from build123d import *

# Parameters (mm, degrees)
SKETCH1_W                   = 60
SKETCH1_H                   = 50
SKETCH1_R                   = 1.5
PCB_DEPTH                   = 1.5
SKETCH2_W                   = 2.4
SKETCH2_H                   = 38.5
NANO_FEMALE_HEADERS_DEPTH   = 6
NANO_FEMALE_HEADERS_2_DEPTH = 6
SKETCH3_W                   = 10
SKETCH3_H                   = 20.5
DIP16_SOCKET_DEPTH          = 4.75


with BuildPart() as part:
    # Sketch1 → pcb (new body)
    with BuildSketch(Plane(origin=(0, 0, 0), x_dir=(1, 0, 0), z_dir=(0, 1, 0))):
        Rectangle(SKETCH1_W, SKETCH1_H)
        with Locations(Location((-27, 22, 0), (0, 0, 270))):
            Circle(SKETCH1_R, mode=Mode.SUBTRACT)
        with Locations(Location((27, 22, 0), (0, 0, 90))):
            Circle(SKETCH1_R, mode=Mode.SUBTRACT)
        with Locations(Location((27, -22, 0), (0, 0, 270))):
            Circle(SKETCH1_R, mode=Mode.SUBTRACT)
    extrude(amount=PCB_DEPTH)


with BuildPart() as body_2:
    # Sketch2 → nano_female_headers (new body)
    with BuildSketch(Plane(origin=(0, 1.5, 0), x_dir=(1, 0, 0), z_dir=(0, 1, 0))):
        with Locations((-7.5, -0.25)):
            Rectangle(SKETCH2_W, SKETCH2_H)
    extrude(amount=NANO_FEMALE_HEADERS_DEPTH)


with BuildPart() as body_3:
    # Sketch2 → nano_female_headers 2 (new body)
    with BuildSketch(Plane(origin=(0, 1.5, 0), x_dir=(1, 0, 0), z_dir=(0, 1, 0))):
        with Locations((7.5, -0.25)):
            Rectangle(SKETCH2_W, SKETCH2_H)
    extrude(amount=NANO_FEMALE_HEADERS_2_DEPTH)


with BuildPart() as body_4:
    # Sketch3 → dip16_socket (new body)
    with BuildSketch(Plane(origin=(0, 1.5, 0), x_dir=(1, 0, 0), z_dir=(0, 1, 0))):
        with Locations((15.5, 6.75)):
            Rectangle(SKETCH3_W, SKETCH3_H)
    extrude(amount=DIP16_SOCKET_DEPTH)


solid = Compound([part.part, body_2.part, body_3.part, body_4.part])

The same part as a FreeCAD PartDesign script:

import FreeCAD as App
import Part
import Sketcher
from FreeCAD import Vector

doc = App.newDocument("Part")
params = doc.addObject("Spreadsheet::Sheet", "Params")
for row, (alias, value) in enumerate([
    ("sketch1_diameter", "3 mm"),
    ("sketch1_width", "60 mm"),
    ("sketch1_height", "50 mm"),
    ("pad1_length", "1.5 mm"),
    ("sketch2_width", "2.4 mm"),
    ("sketch2_height", "38.5 mm"),
    ("pad2_length", "6 mm"),
    ("sketch3_width", "2.4 mm"),
    ("sketch3_height", "38.5 mm"),
    ("pad3_length", "6 mm"),
    ("sketch4_width", "10 mm"),
    ("sketch4_height", "20.5 mm"),
    ("pad4_length", "4.75 mm"),
], start=1):
    params.set(f"A{row}", alias)
    params.set(f"B{row}", "=" + value)
    params.setAlias(f"B{row}", alias)

body = doc.addObject("PartDesign::Body", "Body")

sketch1 = body.newObject("Sketcher::SketchObject", "Sketch")
sketch1.AttachmentSupport = (doc.getObject("XZ_Plane"), [""])
sketch1.MapMode = "FlatFace"
sketch1.addGeometry([
    Part.LineSegment(Vector(-30, -25, 0), Vector(-30, 25, 0)),
    Part.LineSegment(Vector(-30, 25, 0), Vector(30, 25, 0)),
    Part.LineSegment(Vector(30, 25, 0), Vector(30, -25, 0)),
    Part.LineSegment(Vector(30, -25, 0), Vector(-30, -25, 0)),
    Part.Circle(Vector(27, 22, 0), Vector(0, 0, 1), 1.5),
    Part.Circle(Vector(-27, -22, 0), Vector(0, 0, 1), 1.5),
    Part.Circle(Vector(27, -22, 0), Vector(0, 0, 1), 1.5),
], False)
sketch1.addConstraint([
    Sketcher.Constraint("Coincident", 0, 2, 1, 1),
    Sketcher.Constraint("Coincident", 1, 2, 2, 1),
    Sketcher.Constraint("Coincident", 2, 2, 3, 1),
    Sketcher.Constraint("Coincident", 3, 2, 0, 1),
    Sketcher.Constraint("Vertical", 0),
    Sketcher.Constraint("Horizontal", 1),
    Sketcher.Constraint("Vertical", 2),
    Sketcher.Constraint("Horizontal", 3),
    Sketcher.Constraint("Equal", 4, 5),
    Sketcher.Constraint("Equal", 5, 6),
    Sketcher.Constraint("Symmetric", 4, 3, 5, 3, -1, 1),
    Sketcher.Constraint("Symmetric", 0, 2, 2, 2, -1, 1),
    Sketcher.Constraint("Symmetric", 5, 3, 6, 3, -2),
    Sketcher.Constraint("Diameter", 4, 3.0),
    Sketcher.Constraint("DistanceX", 1, 1, 1, 2, 60.0),
    Sketcher.Constraint("DistanceY", 0, 1, 0, 2, 50.0),
    Sketcher.Constraint("DistanceX", -1, 1, 4, 3, 27.0),
    Sketcher.Constraint("DistanceY", -1, 1, 4, 3, 22.0),
])
sketch1.setExpression("Constraints[13]", "Params.sketch1_diameter")
sketch1.setExpression("Constraints[14]", "Params.sketch1_width")
sketch1.setExpression("Constraints[15]", "Params.sketch1_height")
pad1 = body.newObject("PartDesign::Pad", "Pad")
pad1.Profile = sketch1
pad1.setExpression("Length", "Params.pad1_length")
pad1.Reversed = True
body2 = doc.addObject("PartDesign::Body", "Body001")

sketch2 = body2.newObject("Sketcher::SketchObject", "Sketch001")
sketch2.AttachmentSupport = (doc.getObject("XZ_Plane001"), [""])
sketch2.MapMode = "FlatFace"
sketch2.AttachmentOffset = App.Placement(Vector(0, 0, -1.5), App.Rotation())
sketch2.addGeometry([
    Part.LineSegment(Vector(-8.7, -19, 0), Vector(-8.7, 19.5, 0)),
    Part.LineSegment(Vector(-8.7, 19.5, 0), Vector(-6.3, 19.5, 0)),
    Part.LineSegment(Vector(-6.3, 19.5, 0), Vector(-6.3, -19, 0)),
    Part.LineSegment(Vector(-6.3, -19, 0), Vector(-8.7, -19, 0)),
], False)
sketch2.addConstraint([
    Sketcher.Constraint("Coincident", 0, 2, 1, 1),
    Sketcher.Constraint("Coincident", 1, 2, 2, 1),
    Sketcher.Constraint("Coincident", 2, 2, 3, 1),
    Sketcher.Constraint("Coincident", 3, 2, 0, 1),
    Sketcher.Constraint("Vertical", 0),
    Sketcher.Constraint("Horizontal", 1),
    Sketcher.Constraint("Vertical", 2),
    Sketcher.Constraint("Horizontal", 3),
    Sketcher.Constraint("DistanceX", 1, 1, 1, 2, 2.4),
    Sketcher.Constraint("DistanceY", 0, 1, 0, 2, 38.5),
    Sketcher.Constraint("DistanceY", 2, 2, -1, 1, 19.0),
    Sketcher.Constraint("DistanceX", 0, 2, -1, 1, 8.7),
])
sketch2.setExpression("Constraints[8]", "Params.sketch2_width")
sketch2.setExpression("Constraints[9]", "Params.sketch2_height")
pad2 = body2.newObject("PartDesign::Pad", "Pad001")
pad2.Profile = sketch2
pad2.setExpression("Length", "Params.pad2_length")
pad2.Reversed = True
body3 = doc.addObject("PartDesign::Body", "Body002")

sketch3 = body3.newObject("Sketcher::SketchObject", "Sketch002")
sketch3.AttachmentSupport = (doc.getObject("XZ_Plane002"), [""])
sketch3.MapMode = "FlatFace"
sketch3.AttachmentOffset = App.Placement(Vector(0, 0, -1.5), App.Rotation())
sketch3.addGeometry([
    Part.LineSegment(Vector(6.3, -19, 0), Vector(6.3, 19.5, 0)),
    Part.LineSegment(Vector(6.3, 19.5, 0), Vector(8.7, 19.5, 0)),
    Part.LineSegment(Vector(8.7, 19.5, 0), Vector(8.7, -19, 0)),
    Part.LineSegment(Vector(8.7, -19, 0), Vector(6.3, -19, 0)),
], False)
sketch3.addConstraint([
    Sketcher.Constraint("Coincident", 0, 2, 1, 1),
    Sketcher.Constraint("Coincident", 1, 2, 2, 1),
    Sketcher.Constraint("Coincident", 2, 2, 3, 1),
    Sketcher.Constraint("Coincident", 3, 2, 0, 1),
    Sketcher.Constraint("Vertical", 0),
    Sketcher.Constraint("Horizontal", 1),
    Sketcher.Constraint("Vertical", 2),
    Sketcher.Constraint("Horizontal", 3),
    Sketcher.Constraint("DistanceX", 1, 1, 1, 2, 2.4),
    Sketcher.Constraint("DistanceY", 0, 1, 0, 2, 38.5),
    Sketcher.Constraint("DistanceY", 2, 2, -1, 1, 19.0),
    Sketcher.Constraint("DistanceX", -1, 1, 0, 2, 6.3),
])
sketch3.setExpression("Constraints[8]", "Params.sketch3_width")
sketch3.setExpression("Constraints[9]", "Params.sketch3_height")
pad3 = body3.newObject("PartDesign::Pad", "Pad002")
pad3.Profile = sketch3
pad3.setExpression("Length", "Params.pad3_length")
pad3.Reversed = True
body4 = doc.addObject("PartDesign::Body", "Body003")

sketch4 = body4.newObject("Sketcher::SketchObject", "Sketch003")
sketch4.AttachmentSupport = (doc.getObject("XZ_Plane003"), [""])
sketch4.MapMode = "FlatFace"
sketch4.AttachmentOffset = App.Placement(Vector(0, 0, -1.5), App.Rotation())
sketch4.addGeometry([
    Part.LineSegment(Vector(10.5, -17, 0), Vector(10.5, 3.5, 0)),
    Part.LineSegment(Vector(10.5, 3.5, 0), Vector(20.5, 3.5, 0)),
    Part.LineSegment(Vector(20.5, 3.5, 0), Vector(20.5, -17, 0)),
    Part.LineSegment(Vector(20.5, -17, 0), Vector(10.5, -17, 0)),
], False)
sketch4.addConstraint([
    Sketcher.Constraint("Coincident", 0, 2, 1, 1),
    Sketcher.Constraint("Coincident", 1, 2, 2, 1),
    Sketcher.Constraint("Coincident", 2, 2, 3, 1),
    Sketcher.Constraint("Coincident", 3, 2, 0, 1),
    Sketcher.Constraint("Vertical", 0),
    Sketcher.Constraint("Horizontal", 1),
    Sketcher.Constraint("Vertical", 2),
    Sketcher.Constraint("Horizontal", 3),
    Sketcher.Constraint("DistanceX", 1, 1, 1, 2, 10.0),
    Sketcher.Constraint("DistanceY", 0, 1, 0, 2, 20.5),
    Sketcher.Constraint("DistanceY", 2, 2, -1, 1, 17.0),
    Sketcher.Constraint("DistanceX", -1, 1, 0, 2, 10.5),
])
sketch4.setExpression("Constraints[8]", "Params.sketch4_width")
sketch4.setExpression("Constraints[9]", "Params.sketch4_height")
pad4 = body4.newObject("PartDesign::Pad", "Pad003")
pad4.Profile = sketch4
pad4.setExpression("Length", "Params.pad4_length")
pad4.Reversed = True

doc.recompute()
